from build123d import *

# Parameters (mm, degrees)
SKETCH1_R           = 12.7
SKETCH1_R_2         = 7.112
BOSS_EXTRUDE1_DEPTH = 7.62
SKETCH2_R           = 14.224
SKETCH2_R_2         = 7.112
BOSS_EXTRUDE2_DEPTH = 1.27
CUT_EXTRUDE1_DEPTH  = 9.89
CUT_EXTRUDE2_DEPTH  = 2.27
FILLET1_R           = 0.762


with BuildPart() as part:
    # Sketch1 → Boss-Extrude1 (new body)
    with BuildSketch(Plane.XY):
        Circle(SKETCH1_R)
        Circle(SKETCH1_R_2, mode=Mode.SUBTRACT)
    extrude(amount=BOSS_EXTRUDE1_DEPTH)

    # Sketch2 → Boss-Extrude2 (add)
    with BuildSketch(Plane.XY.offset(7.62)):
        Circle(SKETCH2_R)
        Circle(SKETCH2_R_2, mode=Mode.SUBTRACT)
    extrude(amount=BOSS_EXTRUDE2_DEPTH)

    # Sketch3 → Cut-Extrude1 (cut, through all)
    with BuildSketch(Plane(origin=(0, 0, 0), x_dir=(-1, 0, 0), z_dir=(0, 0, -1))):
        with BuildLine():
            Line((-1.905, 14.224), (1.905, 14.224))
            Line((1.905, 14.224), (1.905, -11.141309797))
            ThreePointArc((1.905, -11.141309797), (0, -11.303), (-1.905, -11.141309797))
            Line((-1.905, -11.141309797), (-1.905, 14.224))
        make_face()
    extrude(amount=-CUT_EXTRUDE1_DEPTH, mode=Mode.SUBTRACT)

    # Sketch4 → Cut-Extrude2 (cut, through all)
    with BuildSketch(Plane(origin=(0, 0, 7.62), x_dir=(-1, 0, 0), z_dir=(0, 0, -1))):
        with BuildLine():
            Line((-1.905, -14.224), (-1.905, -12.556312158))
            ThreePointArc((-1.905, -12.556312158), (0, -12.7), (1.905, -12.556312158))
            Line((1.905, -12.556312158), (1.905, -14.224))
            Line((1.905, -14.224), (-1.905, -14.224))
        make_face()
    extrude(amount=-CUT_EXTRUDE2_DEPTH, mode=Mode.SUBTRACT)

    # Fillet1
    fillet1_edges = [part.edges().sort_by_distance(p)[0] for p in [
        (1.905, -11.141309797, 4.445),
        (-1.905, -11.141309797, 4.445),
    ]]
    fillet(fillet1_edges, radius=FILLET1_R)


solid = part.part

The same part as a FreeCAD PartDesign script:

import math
import FreeCAD as App
import Part
import Sketcher

V = App.Vector
Q = App.Units.Quantity


def edges_at(feature, points):
    """Names of the edges that pass closest to the given points."""
    edges = feature.Shape.Edges
    near = lambda p: min(range(len(edges)), key=lambda i: edges[i].distToShape(Part.Vertex(*p))[0])
    return sorted({f"Edge{near(p) + 1}" for p in points})

doc = App.newDocument("Part")
body = doc.addObject("PartDesign::Body", "Body")

# Sketch on XY plane
sketch1 = doc.addObject("Sketcher::SketchObject", "Sketch")
body.addObject(sketch1)
sketch1.AttachmentSupport = (doc.XY_Plane, [""])
sketch1.MapMode = "FlatFace"
sketch1.addGeometry([
    Part.Circle(V(0, 0, 0), V(0, 0, 1), 12.7),
    Part.Circle(V(0, 0, 0), V(0, 0, 1), 7.112),
], False)
sketch1.addConstraint([
    Sketcher.Constraint("Coincident", 0, 3, -1, 1),
    Sketcher.Constraint("Coincident", 1, 3, -1, 1),
    Sketcher.Constraint("Diameter", 0, Q("1 in")),
    Sketcher.Constraint("Diameter", 1, Q("0.56 in")),
])
pad1 = doc.addObject("PartDesign::Pad", "Pad")
body.addObject(pad1)
pad1.Profile = sketch1
pad1.Length = Q("0.3 in")

# Sketch on XY plane
sketch2 = doc.addObject("Sketcher::SketchObject", "Sketch001")
body.addObject(sketch2)
sketch2.AttachmentSupport = (doc.XY_Plane, [""])
sketch2.MapMode = "FlatFace"
sketch2.AttachmentOffset = App.Placement(V(0, 0, 0.3 * 25.4), App.Rotation())
sketch2.addGeometry([
    Part.Circle(V(0, 0, 0), V(0, 0, 1), 14.224),
    Part.Circle(V(0, 0, 0), V(0, 0, 1), 7.112),
], False)
sketch2.addConstraint([
    Sketcher.Constraint("Coincident", 0, 3, -1, 1),
    Sketcher.Constraint("Coincident", 1, 3, -1, 1),
    Sketcher.Constraint("Diameter", 0, Q("1.12 in")),
    Sketcher.Constraint("Diameter", 1, Q("0.56 in")),
])
pad2 = doc.addObject("PartDesign::Pad", "Pad001")
body.addObject(pad2)
pad2.Profile = sketch2
pad2.Length = Q("0.05 in")

# Sketch on XY plane
sketch3 = doc.addObject("Sketcher::SketchObject", "Sketch002")
body.addObject(sketch3)
sketch3.AttachmentSupport = (doc.XY_Plane, [""])
sketch3.MapMode = "FlatFace"
sketch3.addGeometry([
    Part.LineSegment(V(-1.905, 14.224, 0), V(1.905, 14.224, 0)),
    Part.LineSegment(V(1.905, 14.224, 0), V(1.905, -11.14131, 0)),
    Part.ArcOfCircle(Part.Circle(V(0, 0, 0), V(0, 0, 1), 11.303), math.radians(-99.702903), math.radians(-80.297097)),
    Part.LineSegment(V(-1.905, -11.14131, 0), V(-1.905, 14.224, 0)),
], False)
sketch3.addConstraint([
    Sketcher.Constraint("Coincident", 0, 2, 1, 1),
    Sketcher.Constraint("Coincident", 1, 2, 2, 2),
    Sketcher.Constraint("Coincident", 2, 1, 3, 1),
    Sketcher.Constraint("Coincident", 3, 2, 0, 1),
    Sketcher.Constraint("Horizontal", 0),
    Sketcher.Constraint("Vertical", 1),
    Sketcher.Constraint("Vertical", 3),
    Sketcher.Constraint("Coincident", 2, 3, -1, 1),
    Sketcher.Constraint("Horizontal", 1, 2, 2, 1),
    Sketcher.Constraint("Radius", 2, Q("0.445 in")),
    Sketcher.Constraint("DistanceX", 0, 1, 0, 2, Q("0.15 in")),
    Sketcher.Constraint("DistanceY", -1, 1, 0, 2, Q("0.56 in")),
])
pocket1 = doc.addObject("PartDesign::Pocket", "Pocket")
body.addObject(pocket1)
pocket1.Profile = sketch3
pocket1.Type = "ThroughAll"
pocket1.Reversed = True

# Sketch on XY plane
sketch4 = doc.addObject("Sketcher::SketchObject", "Sketch003")
body.addObject(sketch4)
sketch4.AttachmentSupport = (doc.XY_Plane, [""])
sketch4.MapMode = "FlatFace"
sketch4.AttachmentOffset = App.Placement(V(0, 0, 0.3 * 25.4), App.Rotation())
sketch4.addGeometry([
    Part.LineSegment(V(1.905, -12.556312, 0), V(1.905, -14.224, 0)),
    Part.LineSegment(V(1.905, -14.224, 0), V(-1.905, -14.224, 0)),
    Part.LineSegment(V(-1.905, -14.224, 0), V(-1.905, -12.556312, 0)),
    Part.ArcOfCircle(Part.Circle(V(0, 0, 0), V(0, 0, 1), 12.7), math.radians(-98.626927), math.radians(-81.373073)),
], False)
sketch4.addConstraint([
    Sketcher.Constraint("Coincident", 0, 2, 1, 1),
    Sketcher.Constraint("Coincident", 1, 2, 2, 1),
    Sketcher.Constraint("Coincident", 2, 2, 3, 1),
    Sketcher.Constraint("Coincident", 3, 2, 0, 1),
    Sketcher.Constraint("Vertical", 0),
    Sketcher.Constraint("Horizontal", 1),
    Sketcher.Constraint("Vertical", 2),
    Sketcher.Constraint("Coincident", 3, 3, -1, 1),
    Sketcher.Constraint("Horizontal", 2, 2, 3, 2),
    Sketcher.Constraint("Radius", 3, Q("0.5 in")),
    Sketcher.Constraint("DistanceX", 1, 2, 1, 1, Q("0.15 in")),
    Sketcher.Constraint("DistanceY", 0, 2, -1, 1, Q("0.56 in")),
])
pocket2 = doc.addObject("PartDesign::Pocket", "Pocket001")
body.addObject(pocket2)
pocket2.Profile = sketch4
pocket2.Type = "ThroughAll"
pocket2.Reversed = True
doc.recompute()

fillet = doc.addObject("PartDesign::Fillet", "Fillet")
body.addObject(fillet)
fillet.Base = (pocket2, edges_at(pocket2, [(1.905, -11.141, 4.445), (-1.905, -11.141, 4.445)]))
fillet.Radius = Q("0.03 in")

doc.recompute()
